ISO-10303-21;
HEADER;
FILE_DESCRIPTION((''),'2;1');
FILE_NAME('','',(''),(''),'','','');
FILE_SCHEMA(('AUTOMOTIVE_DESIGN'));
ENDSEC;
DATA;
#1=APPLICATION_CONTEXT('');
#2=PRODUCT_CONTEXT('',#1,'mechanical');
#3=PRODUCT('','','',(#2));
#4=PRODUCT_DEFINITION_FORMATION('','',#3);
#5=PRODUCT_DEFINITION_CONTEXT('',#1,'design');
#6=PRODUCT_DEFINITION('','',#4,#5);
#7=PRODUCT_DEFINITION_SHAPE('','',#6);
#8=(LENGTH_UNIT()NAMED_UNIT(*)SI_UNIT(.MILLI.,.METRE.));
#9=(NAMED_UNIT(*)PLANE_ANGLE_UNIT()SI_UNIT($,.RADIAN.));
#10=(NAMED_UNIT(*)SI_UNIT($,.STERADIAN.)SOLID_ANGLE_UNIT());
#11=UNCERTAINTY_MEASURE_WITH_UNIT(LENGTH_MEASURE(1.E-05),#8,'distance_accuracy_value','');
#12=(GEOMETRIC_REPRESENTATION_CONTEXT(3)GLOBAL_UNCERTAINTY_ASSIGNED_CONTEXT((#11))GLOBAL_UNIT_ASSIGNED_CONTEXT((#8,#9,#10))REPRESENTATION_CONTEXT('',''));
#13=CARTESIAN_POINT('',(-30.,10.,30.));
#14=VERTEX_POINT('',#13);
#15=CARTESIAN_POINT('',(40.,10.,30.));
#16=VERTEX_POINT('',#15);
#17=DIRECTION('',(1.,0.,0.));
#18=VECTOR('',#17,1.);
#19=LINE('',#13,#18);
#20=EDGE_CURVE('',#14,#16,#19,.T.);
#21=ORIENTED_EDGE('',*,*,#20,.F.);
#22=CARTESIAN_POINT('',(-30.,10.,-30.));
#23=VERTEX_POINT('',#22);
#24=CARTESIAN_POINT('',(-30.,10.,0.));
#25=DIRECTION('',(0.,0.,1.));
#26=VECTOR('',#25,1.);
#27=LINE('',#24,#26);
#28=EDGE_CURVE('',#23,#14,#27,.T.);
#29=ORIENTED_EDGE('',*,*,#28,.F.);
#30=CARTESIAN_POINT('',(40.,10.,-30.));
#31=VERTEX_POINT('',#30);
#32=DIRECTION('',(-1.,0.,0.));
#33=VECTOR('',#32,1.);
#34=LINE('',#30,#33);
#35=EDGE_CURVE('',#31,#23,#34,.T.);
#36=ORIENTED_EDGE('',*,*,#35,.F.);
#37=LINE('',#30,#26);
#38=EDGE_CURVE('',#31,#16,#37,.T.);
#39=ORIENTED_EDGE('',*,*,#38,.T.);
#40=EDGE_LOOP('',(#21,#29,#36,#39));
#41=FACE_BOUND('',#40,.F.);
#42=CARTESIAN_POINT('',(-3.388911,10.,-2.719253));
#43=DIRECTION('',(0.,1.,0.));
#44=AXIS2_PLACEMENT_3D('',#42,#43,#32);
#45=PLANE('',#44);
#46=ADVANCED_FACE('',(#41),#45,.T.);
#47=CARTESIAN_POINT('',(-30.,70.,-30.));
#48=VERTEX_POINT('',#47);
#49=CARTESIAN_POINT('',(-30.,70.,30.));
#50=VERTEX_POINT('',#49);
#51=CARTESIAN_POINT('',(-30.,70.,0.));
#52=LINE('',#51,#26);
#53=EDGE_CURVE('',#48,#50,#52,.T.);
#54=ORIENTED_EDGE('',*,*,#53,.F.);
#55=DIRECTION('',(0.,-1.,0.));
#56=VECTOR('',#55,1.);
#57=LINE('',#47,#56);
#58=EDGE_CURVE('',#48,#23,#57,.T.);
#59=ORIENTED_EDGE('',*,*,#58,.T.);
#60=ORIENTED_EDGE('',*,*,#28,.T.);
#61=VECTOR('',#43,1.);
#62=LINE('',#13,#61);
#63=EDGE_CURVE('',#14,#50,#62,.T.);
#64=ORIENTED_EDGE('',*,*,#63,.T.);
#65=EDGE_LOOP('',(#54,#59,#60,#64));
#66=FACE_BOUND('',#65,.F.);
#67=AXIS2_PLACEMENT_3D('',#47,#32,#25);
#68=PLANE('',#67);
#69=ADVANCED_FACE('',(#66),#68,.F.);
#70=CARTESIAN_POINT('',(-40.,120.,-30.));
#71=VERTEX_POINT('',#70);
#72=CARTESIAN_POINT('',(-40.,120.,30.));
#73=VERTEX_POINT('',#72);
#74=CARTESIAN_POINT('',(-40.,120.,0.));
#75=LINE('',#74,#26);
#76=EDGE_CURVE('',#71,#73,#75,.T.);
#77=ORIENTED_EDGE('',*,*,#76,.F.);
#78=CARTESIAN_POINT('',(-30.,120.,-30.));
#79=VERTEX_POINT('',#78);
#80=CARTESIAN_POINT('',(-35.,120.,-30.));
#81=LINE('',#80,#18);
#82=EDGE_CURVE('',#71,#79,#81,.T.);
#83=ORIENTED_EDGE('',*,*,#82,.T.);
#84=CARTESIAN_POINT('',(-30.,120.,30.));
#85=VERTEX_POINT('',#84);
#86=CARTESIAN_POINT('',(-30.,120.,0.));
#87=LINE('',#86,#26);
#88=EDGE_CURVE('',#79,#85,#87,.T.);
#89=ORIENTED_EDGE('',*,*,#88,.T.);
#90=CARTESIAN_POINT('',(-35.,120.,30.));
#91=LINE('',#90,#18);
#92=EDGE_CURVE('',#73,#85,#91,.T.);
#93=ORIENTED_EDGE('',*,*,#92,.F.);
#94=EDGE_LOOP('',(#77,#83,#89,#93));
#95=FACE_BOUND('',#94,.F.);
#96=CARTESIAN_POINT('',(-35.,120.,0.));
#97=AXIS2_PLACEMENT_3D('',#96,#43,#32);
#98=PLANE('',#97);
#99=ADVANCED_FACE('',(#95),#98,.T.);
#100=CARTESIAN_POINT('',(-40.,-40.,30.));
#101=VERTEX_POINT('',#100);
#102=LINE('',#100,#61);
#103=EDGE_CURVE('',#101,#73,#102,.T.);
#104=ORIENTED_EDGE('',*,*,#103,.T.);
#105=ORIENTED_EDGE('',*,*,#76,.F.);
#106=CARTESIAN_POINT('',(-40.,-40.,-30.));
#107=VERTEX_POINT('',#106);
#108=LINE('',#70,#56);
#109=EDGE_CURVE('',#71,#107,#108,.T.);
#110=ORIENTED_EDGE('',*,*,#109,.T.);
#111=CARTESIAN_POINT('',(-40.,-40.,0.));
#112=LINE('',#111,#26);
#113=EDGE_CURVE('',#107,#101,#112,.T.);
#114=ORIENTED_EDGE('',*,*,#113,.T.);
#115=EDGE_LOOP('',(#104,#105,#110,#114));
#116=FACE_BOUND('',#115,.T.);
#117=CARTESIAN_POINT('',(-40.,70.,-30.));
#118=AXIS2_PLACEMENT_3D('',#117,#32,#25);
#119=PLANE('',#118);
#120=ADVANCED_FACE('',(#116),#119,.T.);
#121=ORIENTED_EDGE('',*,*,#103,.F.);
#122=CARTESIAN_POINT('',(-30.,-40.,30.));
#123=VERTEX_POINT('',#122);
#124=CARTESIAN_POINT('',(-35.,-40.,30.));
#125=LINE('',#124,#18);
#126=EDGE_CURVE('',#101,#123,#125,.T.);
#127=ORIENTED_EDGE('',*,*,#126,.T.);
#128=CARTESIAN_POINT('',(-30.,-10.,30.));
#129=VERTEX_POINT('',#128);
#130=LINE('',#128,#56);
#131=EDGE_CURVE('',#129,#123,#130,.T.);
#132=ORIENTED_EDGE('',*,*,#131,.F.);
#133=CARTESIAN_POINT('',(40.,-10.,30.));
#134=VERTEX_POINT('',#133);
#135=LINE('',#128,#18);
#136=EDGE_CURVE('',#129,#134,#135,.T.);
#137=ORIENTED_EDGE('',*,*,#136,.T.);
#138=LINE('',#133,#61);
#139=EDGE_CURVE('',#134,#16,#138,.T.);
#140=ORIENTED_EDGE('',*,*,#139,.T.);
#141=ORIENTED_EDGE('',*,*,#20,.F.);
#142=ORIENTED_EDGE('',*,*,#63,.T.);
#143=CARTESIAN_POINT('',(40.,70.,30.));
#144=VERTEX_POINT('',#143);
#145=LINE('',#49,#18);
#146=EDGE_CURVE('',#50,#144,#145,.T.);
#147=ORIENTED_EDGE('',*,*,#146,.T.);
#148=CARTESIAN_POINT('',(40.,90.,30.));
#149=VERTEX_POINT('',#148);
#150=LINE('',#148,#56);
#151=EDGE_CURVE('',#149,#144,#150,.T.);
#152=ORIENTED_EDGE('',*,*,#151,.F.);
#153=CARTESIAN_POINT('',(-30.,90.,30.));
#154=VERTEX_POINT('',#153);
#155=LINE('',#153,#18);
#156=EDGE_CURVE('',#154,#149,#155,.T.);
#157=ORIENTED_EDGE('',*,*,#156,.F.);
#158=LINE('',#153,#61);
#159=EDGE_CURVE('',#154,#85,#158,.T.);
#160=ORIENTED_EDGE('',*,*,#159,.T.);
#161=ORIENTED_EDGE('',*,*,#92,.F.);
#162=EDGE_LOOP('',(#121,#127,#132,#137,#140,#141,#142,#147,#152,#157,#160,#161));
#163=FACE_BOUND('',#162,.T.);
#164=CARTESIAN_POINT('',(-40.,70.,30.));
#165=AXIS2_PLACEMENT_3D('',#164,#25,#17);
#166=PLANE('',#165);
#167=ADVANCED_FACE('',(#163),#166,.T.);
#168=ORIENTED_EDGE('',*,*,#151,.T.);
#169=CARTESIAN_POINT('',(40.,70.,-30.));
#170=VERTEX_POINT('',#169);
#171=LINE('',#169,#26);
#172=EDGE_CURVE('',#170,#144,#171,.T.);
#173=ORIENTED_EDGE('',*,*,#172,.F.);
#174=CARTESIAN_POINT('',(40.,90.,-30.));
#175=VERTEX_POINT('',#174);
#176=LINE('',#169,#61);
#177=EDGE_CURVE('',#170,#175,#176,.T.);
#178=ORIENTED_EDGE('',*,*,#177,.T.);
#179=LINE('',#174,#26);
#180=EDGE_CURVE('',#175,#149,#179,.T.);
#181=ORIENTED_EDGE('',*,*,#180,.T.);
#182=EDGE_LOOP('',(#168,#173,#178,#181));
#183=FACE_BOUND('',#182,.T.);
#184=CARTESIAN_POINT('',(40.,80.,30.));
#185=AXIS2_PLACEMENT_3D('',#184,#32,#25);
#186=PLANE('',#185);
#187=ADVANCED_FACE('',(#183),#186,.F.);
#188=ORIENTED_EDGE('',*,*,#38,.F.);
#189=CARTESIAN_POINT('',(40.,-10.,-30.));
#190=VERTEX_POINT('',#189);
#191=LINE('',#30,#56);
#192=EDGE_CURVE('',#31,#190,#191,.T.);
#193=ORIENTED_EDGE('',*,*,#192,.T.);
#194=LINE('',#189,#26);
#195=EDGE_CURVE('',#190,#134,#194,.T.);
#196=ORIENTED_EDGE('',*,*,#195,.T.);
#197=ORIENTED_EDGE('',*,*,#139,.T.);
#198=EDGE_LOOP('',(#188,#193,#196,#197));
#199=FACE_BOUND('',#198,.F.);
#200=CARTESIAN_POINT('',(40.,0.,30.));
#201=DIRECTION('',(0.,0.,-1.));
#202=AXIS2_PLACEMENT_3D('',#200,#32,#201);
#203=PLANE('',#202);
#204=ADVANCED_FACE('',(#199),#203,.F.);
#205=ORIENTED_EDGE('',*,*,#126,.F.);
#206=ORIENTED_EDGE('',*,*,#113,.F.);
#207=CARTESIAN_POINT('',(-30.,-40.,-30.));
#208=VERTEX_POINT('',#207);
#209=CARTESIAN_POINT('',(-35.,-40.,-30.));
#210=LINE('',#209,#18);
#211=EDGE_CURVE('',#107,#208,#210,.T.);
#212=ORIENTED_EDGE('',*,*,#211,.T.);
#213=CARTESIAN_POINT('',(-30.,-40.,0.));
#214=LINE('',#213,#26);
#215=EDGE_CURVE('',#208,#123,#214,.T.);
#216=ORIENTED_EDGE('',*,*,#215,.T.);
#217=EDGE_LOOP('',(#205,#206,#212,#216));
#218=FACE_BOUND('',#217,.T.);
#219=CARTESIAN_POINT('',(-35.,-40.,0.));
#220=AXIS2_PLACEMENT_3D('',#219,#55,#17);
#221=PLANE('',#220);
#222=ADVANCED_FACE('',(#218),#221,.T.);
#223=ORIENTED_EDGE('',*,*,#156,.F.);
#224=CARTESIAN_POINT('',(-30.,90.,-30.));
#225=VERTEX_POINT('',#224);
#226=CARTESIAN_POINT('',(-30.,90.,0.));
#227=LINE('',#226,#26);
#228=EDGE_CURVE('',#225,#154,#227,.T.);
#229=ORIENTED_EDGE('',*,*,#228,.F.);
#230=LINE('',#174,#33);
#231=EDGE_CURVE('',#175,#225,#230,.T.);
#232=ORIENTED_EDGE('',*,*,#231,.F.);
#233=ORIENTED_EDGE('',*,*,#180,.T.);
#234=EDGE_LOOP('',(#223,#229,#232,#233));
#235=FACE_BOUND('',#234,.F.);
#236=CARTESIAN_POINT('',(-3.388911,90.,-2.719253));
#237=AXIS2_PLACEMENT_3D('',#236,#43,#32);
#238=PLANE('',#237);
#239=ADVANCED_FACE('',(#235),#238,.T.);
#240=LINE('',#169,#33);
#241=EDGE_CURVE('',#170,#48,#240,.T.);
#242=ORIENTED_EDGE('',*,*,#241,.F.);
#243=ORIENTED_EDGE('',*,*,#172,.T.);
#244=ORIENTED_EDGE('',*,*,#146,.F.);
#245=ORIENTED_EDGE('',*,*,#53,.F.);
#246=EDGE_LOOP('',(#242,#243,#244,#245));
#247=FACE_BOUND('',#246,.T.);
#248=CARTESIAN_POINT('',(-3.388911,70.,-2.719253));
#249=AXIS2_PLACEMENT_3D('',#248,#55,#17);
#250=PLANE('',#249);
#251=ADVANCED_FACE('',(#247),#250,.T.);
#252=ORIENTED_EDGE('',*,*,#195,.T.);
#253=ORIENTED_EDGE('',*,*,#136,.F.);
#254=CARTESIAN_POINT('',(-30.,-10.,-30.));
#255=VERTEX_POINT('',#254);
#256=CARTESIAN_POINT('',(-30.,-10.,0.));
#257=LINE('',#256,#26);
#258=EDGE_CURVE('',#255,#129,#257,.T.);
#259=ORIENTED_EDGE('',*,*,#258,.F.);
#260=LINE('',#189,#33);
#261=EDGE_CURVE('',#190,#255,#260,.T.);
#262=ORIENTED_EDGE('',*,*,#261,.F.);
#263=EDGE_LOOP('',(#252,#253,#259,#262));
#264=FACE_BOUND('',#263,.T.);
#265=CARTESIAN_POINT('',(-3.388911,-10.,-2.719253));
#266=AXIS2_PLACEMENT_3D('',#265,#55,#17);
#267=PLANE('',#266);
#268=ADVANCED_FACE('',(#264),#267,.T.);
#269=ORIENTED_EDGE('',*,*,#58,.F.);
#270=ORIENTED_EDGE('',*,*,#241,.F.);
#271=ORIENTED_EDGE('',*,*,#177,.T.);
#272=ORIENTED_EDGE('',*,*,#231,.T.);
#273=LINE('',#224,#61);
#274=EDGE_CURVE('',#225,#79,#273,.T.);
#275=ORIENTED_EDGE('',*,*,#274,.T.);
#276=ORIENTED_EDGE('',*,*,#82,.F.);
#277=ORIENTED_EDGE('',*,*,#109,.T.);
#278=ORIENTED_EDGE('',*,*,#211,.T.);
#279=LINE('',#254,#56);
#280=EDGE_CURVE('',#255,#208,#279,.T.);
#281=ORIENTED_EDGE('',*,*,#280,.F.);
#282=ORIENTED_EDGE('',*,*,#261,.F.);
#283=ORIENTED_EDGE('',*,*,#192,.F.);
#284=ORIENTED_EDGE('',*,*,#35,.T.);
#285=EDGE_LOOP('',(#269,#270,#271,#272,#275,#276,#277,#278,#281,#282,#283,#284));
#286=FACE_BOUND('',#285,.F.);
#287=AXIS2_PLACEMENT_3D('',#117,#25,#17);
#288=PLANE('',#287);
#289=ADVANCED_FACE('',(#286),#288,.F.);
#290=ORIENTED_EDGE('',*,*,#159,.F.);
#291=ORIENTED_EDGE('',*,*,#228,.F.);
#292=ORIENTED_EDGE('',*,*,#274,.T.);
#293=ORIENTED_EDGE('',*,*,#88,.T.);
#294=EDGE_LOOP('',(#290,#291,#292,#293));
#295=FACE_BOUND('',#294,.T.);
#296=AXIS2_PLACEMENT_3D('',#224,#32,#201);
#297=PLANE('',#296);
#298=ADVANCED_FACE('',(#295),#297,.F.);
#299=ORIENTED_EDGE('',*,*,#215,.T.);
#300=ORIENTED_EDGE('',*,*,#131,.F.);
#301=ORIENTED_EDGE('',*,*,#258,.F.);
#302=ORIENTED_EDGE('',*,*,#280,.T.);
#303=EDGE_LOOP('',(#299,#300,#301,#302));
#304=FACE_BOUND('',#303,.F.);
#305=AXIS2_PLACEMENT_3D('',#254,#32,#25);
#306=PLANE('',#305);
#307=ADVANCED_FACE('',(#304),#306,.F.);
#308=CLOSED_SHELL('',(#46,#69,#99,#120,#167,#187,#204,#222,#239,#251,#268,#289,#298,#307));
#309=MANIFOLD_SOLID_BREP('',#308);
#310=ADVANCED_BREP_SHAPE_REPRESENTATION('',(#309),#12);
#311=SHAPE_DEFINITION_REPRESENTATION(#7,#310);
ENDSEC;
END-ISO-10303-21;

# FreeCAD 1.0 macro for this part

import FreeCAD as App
import Part
import Sketcher
from FreeCAD import Vector


def add_polygon(sketch, points):
    """Adds a closed chain of lines whose ends are joined by coincident constraints."""
    first, n = sketch.GeometryCount, len(points)
    for a, b in zip(points, points[1:] + points[:1]):
        sketch.addGeometry(Part.LineSegment(App.Vector(*a, 0), App.Vector(*b, 0)), False)
    for i in range(n):
        sketch.addConstraint(Sketcher.Constraint("Coincident", first + i, 2, first + (i + 1) % n, 1))

doc = App.newDocument("Part")
body = doc.addObject("PartDesign::Body", "Body")

sketch1 = doc.addObject("Sketcher::SketchObject", "Sketch")
body.addObject(sketch1)
sketch1.AttachmentSupport = (doc.XZ_Plane, [""])
sketch1.MapMode = "FlatFace"
add_polygon(sketch1, [(40, 0), (10, 30), (-40, 30), (-40, -30), (40, -30)])
sketch1.addConstraint([
    Sketcher.Constraint("Horizontal", 1),
    Sketcher.Constraint("Vertical", 2),
    Sketcher.Constraint("Horizontal", 3),
    Sketcher.Constraint("Vertical", 4),
    Sketcher.Constraint("Symmetric", 1, 2, 3, 2, -1, 1),
    Sketcher.Constraint("PointOnObject", 4, 2, -1),
    Sketcher.Constraint("DistanceX", 1, 2, 1, 1, 50.0),
    Sketcher.Constraint("DistanceX", 3, 1, 3, 2, 80.0),
    Sketcher.Constraint("DistanceY", 2, 2, 2, 1, 60.0),
])
pad1 = doc.addObject("PartDesign::Pad", "Pad")
body.addObject(pad1)
pad1.Profile = sketch1
pad1.Length = 10

sketch2 = doc.addObject("Sketcher::SketchObject", "Sketch001")
body.addObject(sketch2)
sketch2.AttachmentSupport = (doc.XZ_Plane, [""])
sketch2.MapMode = "FlatFace"
sketch2.AttachmentOffset = App.Placement(Vector(0, 0, 10), App.Rotation())
add_polygon(sketch2, [(-40, 30), (-40, -30), (-30, -30), (-30, 30)])
sketch2.addConstraint([
    Sketcher.Constraint("Vertical", 0),
    Sketcher.Constraint("Horizontal", 1),
    Sketcher.Constraint("Vertical", 2),
    Sketcher.Constraint("Horizontal", 3),
    Sketcher.Constraint("DistanceX", 1, 1, 1, 2, 10.0),
    Sketcher.Constraint("DistanceY", 0, 2, 0, 1, 60.0),
    Sketcher.Constraint("DistanceX", 0, 2, -1, 1, 40.0),
    Sketcher.Constraint("DistanceY", 0, 2, -1, 1, 30.0),
])
pad2 = doc.addObject("PartDesign::Pad", "Pad001")
body.addObject(pad2)
pad2.Profile = sketch2
pad2.Length = 30
body2 = doc.addObject("PartDesign::Body", "Body001")
doc.recompute()

body2.BaseFeature = body
doc.recompute()

mirroring = doc.addObject("Part::Mirroring", "Mirroring")
mirroring.Source = body
mirroring.Base = Vector(0, 0, 0)
mirroring.Normal = Vector(0, 0, 1)
body3 = doc.addObject("PartDesign::Body", "Body002")
body3.BaseFeature = mirroring
boolean = doc.addObject("PartDesign::Boolean", "Boolean")
body2.addObject(boolean)
boolean.Type = "Fuse"
boolean.addObjects([body3])
doc.recompute()
body4 = doc.addObject("PartDesign::Body", "Body003")
doc.recompute()

body4.BaseFeature = body2
doc.recompute()

mirroring2 = doc.addObject("Part::Mirroring", "Mirroring001")
mirroring2.Source = body2
mirroring2.Base = Vector(0, 0, 0)
mirroring2.Normal = Vector(0, 1, 0)
body5 = doc.addObject("PartDesign::Body", "Body004")
body5.BaseFeature = mirroring2
boolean2 = doc.addObject("PartDesign::Boolean", "Boolean001")
body4.addObject(boolean2)
boolean2.Type = "Fuse"
boolean2.addObjects([body5])
doc.recompute()
body6 = doc.addObject("PartDesign::Body", "Body005")
doc.recompute()

body6.BaseFeature = body4
doc.recompute()

mirroring3 = doc.addObject("Part::Mirroring", "Mirroring002")
mirroring3.Source = body4
mirroring3.Base = Vector(-35, 40, 0)
mirroring3.Normal = Vector(0, 1, 0)
body7 = doc.addObject("PartDesign::Body", "Body006")
body7.BaseFeature = mirroring3
boolean3 = doc.addObject("PartDesign::Boolean", "Boolean002")
body6.addObject(boolean3)
boolean3.Type = "Fuse"
boolean3.addObjects([body7])
doc.recompute()
mirroring.Visibility = False
mirroring2.Visibility = False
mirroring3.Visibility = False

doc.recompute()
